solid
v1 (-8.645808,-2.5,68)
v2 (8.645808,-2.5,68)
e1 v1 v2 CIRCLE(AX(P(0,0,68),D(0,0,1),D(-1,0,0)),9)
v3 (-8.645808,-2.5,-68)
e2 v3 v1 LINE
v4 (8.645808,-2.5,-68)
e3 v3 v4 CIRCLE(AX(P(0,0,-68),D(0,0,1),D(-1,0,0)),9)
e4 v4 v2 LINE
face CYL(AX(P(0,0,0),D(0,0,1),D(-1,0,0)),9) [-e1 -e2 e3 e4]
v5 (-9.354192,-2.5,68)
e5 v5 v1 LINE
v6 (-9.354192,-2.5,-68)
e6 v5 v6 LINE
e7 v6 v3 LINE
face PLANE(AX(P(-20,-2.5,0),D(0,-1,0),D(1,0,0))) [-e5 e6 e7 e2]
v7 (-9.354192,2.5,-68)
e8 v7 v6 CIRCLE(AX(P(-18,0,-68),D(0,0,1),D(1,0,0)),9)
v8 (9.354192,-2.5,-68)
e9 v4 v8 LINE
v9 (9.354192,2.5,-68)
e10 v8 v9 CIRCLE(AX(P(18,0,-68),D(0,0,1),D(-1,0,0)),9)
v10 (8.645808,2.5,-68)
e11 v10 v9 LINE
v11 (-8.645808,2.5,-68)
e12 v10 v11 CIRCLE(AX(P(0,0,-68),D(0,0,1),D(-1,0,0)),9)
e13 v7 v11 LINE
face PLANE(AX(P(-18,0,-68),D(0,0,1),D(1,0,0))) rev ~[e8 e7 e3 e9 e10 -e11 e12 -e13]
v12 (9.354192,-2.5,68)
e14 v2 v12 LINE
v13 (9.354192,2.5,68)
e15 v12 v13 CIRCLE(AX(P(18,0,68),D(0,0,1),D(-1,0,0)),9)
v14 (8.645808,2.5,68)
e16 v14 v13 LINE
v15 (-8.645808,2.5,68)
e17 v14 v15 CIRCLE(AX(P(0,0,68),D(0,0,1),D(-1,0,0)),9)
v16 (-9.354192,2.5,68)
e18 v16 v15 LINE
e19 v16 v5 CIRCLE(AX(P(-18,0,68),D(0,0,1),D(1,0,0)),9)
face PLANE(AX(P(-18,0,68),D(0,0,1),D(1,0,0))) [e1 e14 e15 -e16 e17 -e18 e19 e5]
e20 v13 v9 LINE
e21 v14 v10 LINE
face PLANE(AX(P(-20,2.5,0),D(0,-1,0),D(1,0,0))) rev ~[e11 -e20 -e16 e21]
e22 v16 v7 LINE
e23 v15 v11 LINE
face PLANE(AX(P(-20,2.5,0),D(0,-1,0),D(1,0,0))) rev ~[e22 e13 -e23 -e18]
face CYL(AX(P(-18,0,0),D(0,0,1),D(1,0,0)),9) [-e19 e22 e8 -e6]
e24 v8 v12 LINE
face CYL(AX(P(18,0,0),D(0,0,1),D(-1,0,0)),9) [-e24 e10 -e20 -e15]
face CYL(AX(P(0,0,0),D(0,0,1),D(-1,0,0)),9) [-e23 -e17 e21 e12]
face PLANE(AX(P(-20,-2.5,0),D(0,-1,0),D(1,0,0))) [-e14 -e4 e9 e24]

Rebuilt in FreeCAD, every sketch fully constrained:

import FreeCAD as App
import Part
import Sketcher
from FreeCAD import Vector
Q = App.Units.Quantity


def add_polygon(sketch, points):
    """Adds a closed chain of lines whose ends are joined by coincident constraints."""
    first, n = sketch.GeometryCount, len(points)
    for a, b in zip(points, points[1:] + points[:1]):
        sketch.addGeometry(Part.LineSegment(App.Vector(*a, 0), App.Vector(*b, 0)), False)
    for i in range(n):
        sketch.addConstraint(Sketcher.Constraint("Coincident", first + i, 2, first + (i + 1) % n, 1))

doc = App.newDocument("Part")
body = doc.addObject("PartDesign::Body", "Body")

# Sketch on XY plane
sketch1 = doc.addObject("Sketcher::SketchObject", "Sketch")
body.addObject(sketch1)
sketch1.AttachmentSupport = (doc.XY_Plane, [""])
sketch1.MapMode = "FlatFace"
sketch1.addGeometry(Part.Circle(Vector(-18, 0, 0), Vector(0, 0, 1), 9), False)
sketch1.addConstraint([
    Sketcher.Constraint("PointOnObject", 0, 3, -1),
    Sketcher.Constraint("Diameter", 0, Q("18 mm")),
    Sketcher.Constraint("DistanceX", 0, 3, -1, 1, Q("18 mm")),
])
pad1 = doc.addObject("PartDesign::Pad", "Pad")
body.addObject(pad1)
pad1.Profile = sketch1
pad1.Length = 136
pad1.Midplane = True
body2 = doc.addObject("PartDesign::Body", "Body001")

# Sketch on XY plane
sketch2 = doc.addObject("Sketcher::SketchObject", "Sketch001")
body2.addObject(sketch2)
sketch2.AttachmentSupport = (doc.getObject("XY_Plane001"), [""])
sketch2.MapMode = "FlatFace"
sketch2.addGeometry(Part.Circle(Vector(18, 0, 0), Vector(0, 0, 1), 9), False)
sketch2.addConstraint([
    Sketcher.Constraint("PointOnObject", 0, 3, -1),
    Sketcher.Constraint("Diameter", 0, Q("18 mm")),
    Sketcher.Constraint("DistanceX", -1, 1, 0, 3, Q("18 mm")),
])
pad2 = doc.addObject("PartDesign::Pad", "Pad001")
body2.addObject(pad2)
pad2.Profile = sketch2
pad2.Length = 136
pad2.Midplane = True
body3 = doc.addObject("PartDesign::Body", "Body002")

# Sketch on XY plane
sketch3 = doc.addObject("Sketcher::SketchObject", "Sketch002")
body3.addObject(sketch3)
sketch3.AttachmentSupport = (doc.getObject("XY_Plane002"), [""])
sketch3.MapMode = "FlatFace"
sketch3.addGeometry(Part.Circle(Vector(0, 0, 0), Vector(0, 0, 1), 9), False)
sketch3.addConstraint([
    Sketcher.Constraint("Coincident", 0, 3, -1, 1),
    Sketcher.Constraint("Diameter", 0, Q("18 mm")),
])
pad3 = doc.addObject("PartDesign::Pad", "Pad002")
body3.addObject(pad3)
pad3.Profile = sketch3
pad3.Length = 136
pad3.Midplane = True
body.AllowCompound = True
doc.recompute()

boolean = doc.addObject("PartDesign::Boolean", "Boolean")
body.addObject(boolean)
boolean.Type = "Fuse"
boolean.addObjects([body2])
doc.recompute()

boolean2 = doc.addObject("PartDesign::Boolean", "Boolean001")
body.addObject(boolean2)
boolean2.Type = "Fuse"
boolean2.addObjects([body3])

# Sketch on XY plane
sketch4 = doc.addObject("Sketcher::SketchObject", "Sketch003")
body.addObject(sketch4)
sketch4.AttachmentSupport = (doc.XY_Plane, [""])
sketch4.MapMode = "FlatFace"
add_polygon(sketch4, [(-20, 2.5), (-20, -2.5), (20, -2.5), (20, 2.5)])  # lines 0-3
sketch4.addConstraint([
    Sketcher.Constraint("Vertical", 0),
    Sketcher.Constraint("Horizontal", 1),
    Sketcher.Constraint("Vertical", 2),
    Sketcher.Constraint("Horizontal", 3),
    Sketcher.Constraint("Symmetric", 0, 2, 2, 2, -1, 1),
    Sketcher.Constraint("DistanceX", 1, 1, 1, 2, Q("40 mm")),
    Sketcher.Constraint("DistanceY", 0, 2, 0, 1, Q("5 mm")),
])
pad4 = doc.addObject("PartDesign::Pad", "Pad003")
body.addObject(pad4)
pad4.Profile = sketch4
pad4.Type = "TwoLengths"
pad4.Length = 68
pad4.Length2 = 68

doc.recompute()
